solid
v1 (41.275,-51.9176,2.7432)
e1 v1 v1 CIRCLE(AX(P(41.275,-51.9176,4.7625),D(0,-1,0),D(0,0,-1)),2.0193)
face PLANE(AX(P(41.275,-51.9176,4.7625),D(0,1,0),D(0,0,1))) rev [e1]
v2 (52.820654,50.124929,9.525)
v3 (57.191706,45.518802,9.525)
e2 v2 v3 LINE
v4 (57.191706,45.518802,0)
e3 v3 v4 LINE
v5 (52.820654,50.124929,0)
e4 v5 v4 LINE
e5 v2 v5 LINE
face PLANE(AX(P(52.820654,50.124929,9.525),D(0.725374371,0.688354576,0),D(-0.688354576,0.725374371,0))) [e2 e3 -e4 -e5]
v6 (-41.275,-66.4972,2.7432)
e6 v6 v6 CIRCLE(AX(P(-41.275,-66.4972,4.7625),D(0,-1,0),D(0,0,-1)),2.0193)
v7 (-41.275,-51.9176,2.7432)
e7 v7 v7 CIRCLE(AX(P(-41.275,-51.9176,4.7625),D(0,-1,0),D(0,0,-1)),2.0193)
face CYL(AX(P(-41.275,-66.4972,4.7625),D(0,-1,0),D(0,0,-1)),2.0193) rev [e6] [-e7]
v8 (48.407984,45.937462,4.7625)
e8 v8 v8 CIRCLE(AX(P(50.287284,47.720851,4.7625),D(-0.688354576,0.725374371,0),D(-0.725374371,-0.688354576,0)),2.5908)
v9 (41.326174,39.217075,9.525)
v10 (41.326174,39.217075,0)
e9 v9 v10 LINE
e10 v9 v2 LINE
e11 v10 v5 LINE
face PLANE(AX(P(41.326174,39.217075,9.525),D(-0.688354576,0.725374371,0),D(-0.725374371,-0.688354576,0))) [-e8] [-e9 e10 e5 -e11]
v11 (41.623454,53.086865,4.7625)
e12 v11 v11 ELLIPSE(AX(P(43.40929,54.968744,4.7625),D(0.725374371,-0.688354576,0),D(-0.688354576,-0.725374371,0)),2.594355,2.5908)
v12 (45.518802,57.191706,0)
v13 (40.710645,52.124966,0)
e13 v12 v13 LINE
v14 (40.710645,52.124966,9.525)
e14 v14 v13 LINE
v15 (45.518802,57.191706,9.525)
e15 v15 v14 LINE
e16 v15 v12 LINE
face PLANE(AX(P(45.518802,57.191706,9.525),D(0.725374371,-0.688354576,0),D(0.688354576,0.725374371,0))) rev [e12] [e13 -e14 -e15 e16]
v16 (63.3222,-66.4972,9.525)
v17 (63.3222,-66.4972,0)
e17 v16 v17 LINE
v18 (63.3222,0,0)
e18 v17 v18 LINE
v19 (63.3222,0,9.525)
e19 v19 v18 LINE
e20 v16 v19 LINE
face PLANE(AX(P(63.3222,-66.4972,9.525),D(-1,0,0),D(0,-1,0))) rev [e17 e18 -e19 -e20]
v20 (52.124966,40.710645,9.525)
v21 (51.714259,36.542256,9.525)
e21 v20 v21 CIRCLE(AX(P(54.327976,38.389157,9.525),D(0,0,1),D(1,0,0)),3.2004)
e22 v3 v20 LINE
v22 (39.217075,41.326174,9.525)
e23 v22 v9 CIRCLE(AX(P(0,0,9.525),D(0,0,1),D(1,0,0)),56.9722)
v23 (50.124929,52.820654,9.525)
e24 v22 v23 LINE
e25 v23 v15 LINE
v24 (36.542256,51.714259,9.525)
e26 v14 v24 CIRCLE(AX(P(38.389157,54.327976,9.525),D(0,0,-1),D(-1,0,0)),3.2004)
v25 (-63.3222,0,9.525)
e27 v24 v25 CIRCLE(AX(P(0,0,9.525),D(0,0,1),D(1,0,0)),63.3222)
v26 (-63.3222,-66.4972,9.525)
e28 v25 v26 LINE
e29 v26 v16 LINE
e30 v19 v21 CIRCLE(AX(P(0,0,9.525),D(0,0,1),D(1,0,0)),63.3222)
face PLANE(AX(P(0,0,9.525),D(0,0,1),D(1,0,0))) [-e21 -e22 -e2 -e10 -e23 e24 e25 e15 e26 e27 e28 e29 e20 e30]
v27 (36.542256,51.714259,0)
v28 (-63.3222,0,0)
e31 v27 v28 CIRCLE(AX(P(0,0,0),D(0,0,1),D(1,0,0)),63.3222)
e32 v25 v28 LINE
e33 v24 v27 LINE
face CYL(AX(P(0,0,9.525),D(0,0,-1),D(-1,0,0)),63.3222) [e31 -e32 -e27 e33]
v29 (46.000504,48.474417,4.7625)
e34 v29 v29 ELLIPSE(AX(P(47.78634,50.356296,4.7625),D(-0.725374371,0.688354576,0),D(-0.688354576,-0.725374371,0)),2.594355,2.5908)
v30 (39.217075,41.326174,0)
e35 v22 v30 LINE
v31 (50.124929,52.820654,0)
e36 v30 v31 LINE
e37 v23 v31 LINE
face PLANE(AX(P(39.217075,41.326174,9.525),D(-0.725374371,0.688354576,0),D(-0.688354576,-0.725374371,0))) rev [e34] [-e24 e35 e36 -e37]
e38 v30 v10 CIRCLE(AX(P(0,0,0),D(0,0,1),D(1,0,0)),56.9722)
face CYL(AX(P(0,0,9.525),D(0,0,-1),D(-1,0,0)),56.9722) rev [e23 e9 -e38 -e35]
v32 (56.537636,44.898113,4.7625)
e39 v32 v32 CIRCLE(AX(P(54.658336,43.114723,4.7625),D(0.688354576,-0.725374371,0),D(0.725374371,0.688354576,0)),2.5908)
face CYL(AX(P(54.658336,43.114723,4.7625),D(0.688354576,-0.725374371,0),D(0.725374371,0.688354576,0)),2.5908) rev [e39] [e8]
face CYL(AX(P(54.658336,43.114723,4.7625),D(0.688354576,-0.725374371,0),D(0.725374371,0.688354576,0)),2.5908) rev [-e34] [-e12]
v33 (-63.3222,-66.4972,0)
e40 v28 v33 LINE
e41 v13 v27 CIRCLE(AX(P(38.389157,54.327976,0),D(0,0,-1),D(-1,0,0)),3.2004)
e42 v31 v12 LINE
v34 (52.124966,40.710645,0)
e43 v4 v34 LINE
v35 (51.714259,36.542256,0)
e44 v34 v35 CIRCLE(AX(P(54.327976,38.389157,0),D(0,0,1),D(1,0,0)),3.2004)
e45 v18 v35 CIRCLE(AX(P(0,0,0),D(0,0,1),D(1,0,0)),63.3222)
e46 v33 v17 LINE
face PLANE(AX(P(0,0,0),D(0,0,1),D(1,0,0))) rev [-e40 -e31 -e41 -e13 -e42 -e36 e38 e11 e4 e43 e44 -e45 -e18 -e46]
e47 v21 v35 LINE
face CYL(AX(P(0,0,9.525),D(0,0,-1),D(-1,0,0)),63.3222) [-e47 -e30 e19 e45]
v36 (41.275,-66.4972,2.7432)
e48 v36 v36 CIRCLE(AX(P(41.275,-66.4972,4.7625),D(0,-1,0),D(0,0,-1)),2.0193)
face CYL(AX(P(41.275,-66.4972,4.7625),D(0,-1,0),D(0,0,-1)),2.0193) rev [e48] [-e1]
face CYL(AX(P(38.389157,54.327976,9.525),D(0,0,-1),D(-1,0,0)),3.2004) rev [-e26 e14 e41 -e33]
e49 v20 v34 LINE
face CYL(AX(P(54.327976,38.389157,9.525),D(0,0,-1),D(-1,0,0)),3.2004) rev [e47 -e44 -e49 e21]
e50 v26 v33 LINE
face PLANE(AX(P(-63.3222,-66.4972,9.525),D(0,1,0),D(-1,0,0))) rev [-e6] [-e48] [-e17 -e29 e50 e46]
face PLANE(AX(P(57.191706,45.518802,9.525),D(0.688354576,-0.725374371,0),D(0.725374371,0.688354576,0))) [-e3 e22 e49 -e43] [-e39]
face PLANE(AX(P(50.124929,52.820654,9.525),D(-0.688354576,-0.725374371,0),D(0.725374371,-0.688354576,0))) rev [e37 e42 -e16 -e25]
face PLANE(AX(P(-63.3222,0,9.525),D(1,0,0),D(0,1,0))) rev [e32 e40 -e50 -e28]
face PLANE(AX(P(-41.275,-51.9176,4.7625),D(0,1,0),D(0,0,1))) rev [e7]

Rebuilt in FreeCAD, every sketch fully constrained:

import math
import FreeCAD as App
import Part
import Sketcher
from FreeCAD import Vector
Q = App.Units.Quantity

doc = App.newDocument("Part")
params = doc.addObject("Spreadsheet::Sheet", "Params")
for row, (alias, value) in enumerate([
    ("sketch1_radius", "2.493 in"),
    ("sketch1_radius2", "0.126 in"),
    ("sketch1_radius3", "2.243 in"),
    ("sketch1_length", "0.25 in"),
    ("sketch1_height", "2.618 in"),
    ("pad1_length", "0.375 in"),
    ("sketch2_diameter", "0.159 in"),
    ("hole_diameter", "0.159 in"),
    ("hole_depth", "0.574 in"),
    ("sketch3_diameter", "0.204 in"),
    ("hole2_diameter", "0.204 in"),
], start=1):
    params.set(f"A{row}", alias)
    params.set(f"B{row}", "=" + value)
    params.setAlias(f"B{row}", alias)

body = doc.addObject("PartDesign::Body", "Body")

# Sketch on XY plane
sketch1 = body.newObject("Sketcher::SketchObject", "Sketch")
sketch1.AttachmentSupport = (doc.getObject("XY_Plane"), [""])
sketch1.MapMode = "FlatFace"
sketch1.addGeometry([
    Part.LineSegment(Vector(-63.3, 0, 0), Vector(-63.3, -66.5, 0)),  # 0
    Part.LineSegment(Vector(-63.3, -66.5, 0), Vector(63.3, -66.5, 0)),  # 1
    Part.LineSegment(Vector(63.3, -66.5, 0), Vector(63.3, 0, 0)),  # 2
    Part.ArcOfCircle(Part.Circle(Vector(0, 0, 0), Vector(0, 0, 1), 63.3), math.radians(0), math.radians(35)),  # 3
    Part.ArcOfCircle(Part.Circle(Vector(54.3, 38.4, 0), Vector(0, 0, 1), 3.2), math.radians(134), math.radians(215)),  # 4
    Part.LineSegment(Vector(52.1, 40.7, 0), Vector(57.2, 45.5, 0)),  # 5
    Part.LineSegment(Vector(57.2, 45.5, 0), Vector(52.8, 50.1, 0)),  # 6
    Part.LineSegment(Vector(52.8, 50.1, 0), Vector(41.3, 39.2, 0)),  # 7
    Part.ArcOfCircle(Part.Circle(Vector(0, 0, 0), Vector(0, 0, 1), 57), math.radians(47), math.radians(403)),  # 8
    Part.LineSegment(Vector(39.2, 41.3, 0), Vector(50.1, 52.8, 0)),  # 9
    Part.LineSegment(Vector(50.1, 52.8, 0), Vector(45.5, 57.2, 0)),  # 10
    Part.LineSegment(Vector(45.5, 57.2, 0), Vector(40.7, 52.1, 0)),  # 11
    Part.ArcOfCircle(Part.Circle(Vector(38.4, 54.3, 0), Vector(0, 0, 1), 3.2), math.radians(-125), math.radians(-44)),  # 12
    Part.ArcOfCircle(Part.Circle(Vector(0, 0, 0), Vector(0, 0, 1), 63.3), math.radians(55), math.radians(180)),  # 13
], False)
sketch1.addConstraint([
    Sketcher.Constraint("Coincident", 0, 2, 1, 1),
    Sketcher.Constraint("Coincident", 1, 2, 2, 1),
    Sketcher.Constraint("Tangent", 2, 2, 3, 1),
    Sketcher.Constraint("Tangent", 3, 2, 4, 2),
    Sketcher.Constraint("Tangent", 4, 1, 5, 1),
    Sketcher.Constraint("Coincident", 5, 2, 6, 1),
    Sketcher.Constraint("Coincident", 6, 2, 7, 1),
    Sketcher.Constraint("Coincident", 7, 2, 8, 2),
    Sketcher.Constraint("Coincident", 8, 1, 9, 1),
    Sketcher.Constraint("Coincident", 9, 2, 10, 1),
    Sketcher.Constraint("Coincident", 10, 2, 11, 1),
    Sketcher.Constraint("Tangent", 11, 2, 12, 2),
    Sketcher.Constraint("Tangent", 12, 1, 13, 1),
    Sketcher.Constraint("Tangent", 13, 2, 0, 1),
    Sketcher.Constraint("Vertical", 0),
    Sketcher.Constraint("Horizontal", 1),
    Sketcher.Constraint("Vertical", 2),
    Sketcher.Constraint("Coincident", 3, 3, -1, 1),
    Sketcher.Constraint("Coincident", 8, 3, -1, 1),
    Sketcher.Constraint("Coincident", 13, 3, -1, 1),
    Sketcher.Constraint("Equal", 4, 12),
    Sketcher.Constraint("Equal", 3, 13),
    Sketcher.Constraint("Perpendicular", 5, 6),
    Sketcher.Constraint("Perpendicular", 6, 7),
    Sketcher.Constraint("Perpendicular", 9, 10),
    Sketcher.Constraint("Perpendicular", 10, 11),
    Sketcher.Constraint("Equal", 7, 9),
    Sketcher.Constraint("Equal", 6, 10),
    Sketcher.Constraint("Equal", 5, 11),
    Sketcher.Constraint("Radius", 3, Q("2.493 in")),
    Sketcher.Constraint("Radius", 4, Q("0.126 in")),
    Sketcher.Constraint("Radius", 8, Q("2.243 in")),
    Sketcher.Constraint("Angle", 5, Q("43.5 deg")),
    Sketcher.Constraint("Angle", 9, Q("46.5 deg")),
    Sketcher.Constraint("Distance", 6, Q("0.25 in")),
    Sketcher.Constraint("DistanceY", 0, 2, 0, 1, Q("2.618 in")),
    Sketcher.Constraint("Distance", 5, Q("0.275 in")),
    Sketcher.Constraint("DistanceY", -1, 1, 5, 2, Q("45.518802 mm")),
])
sketch1.setExpression("Constraints[29]", "Params.sketch1_radius")
sketch1.setExpression("Constraints[30]", "Params.sketch1_radius2")
sketch1.setExpression("Constraints[31]", "Params.sketch1_radius3")
sketch1.setExpression("Constraints[34]", "Params.sketch1_length")
sketch1.setExpression("Constraints[35]", "Params.sketch1_height")
pad1 = body.newObject("PartDesign::Pad", "Pad")
pad1.Profile = sketch1
pad1.setExpression("Length", "Params.pad1_length")

# Sketch on XZ plane
sketch2 = body.newObject("Sketcher::SketchObject", "Sketch001")
sketch2.AttachmentSupport = (doc.getObject("XZ_Plane"), [""])
sketch2.MapMode = "FlatFace"
sketch2.AttachmentOffset = App.Placement(Vector(0, 0, 2.618 * 25.4), App.Rotation())
sketch2.addGeometry([
    Part.Circle(Vector(41.3, 4.8, 0), Vector(0, 0, 1), 2),
    Part.Circle(Vector(-41.3, 4.8, 0), Vector(0, 0, 1), 2),
], False)
sketch2.addConstraint([
    Sketcher.Constraint("Equal", 0, 1),
    Sketcher.Constraint("Symmetric", 0, 3, 1, 3, -2),
    Sketcher.Constraint("Diameter", 0, Q("0.159 in")),
    Sketcher.Constraint("DistanceX", 1, 3, 0, 3, Q("3.25 in")),
    Sketcher.Constraint("DistanceY", -1, 1, 0, 3, Q("0.1875 in")),
])
sketch2.setExpression("Constraints[2]", "Params.sketch2_diameter")
doc.recompute()
hole = body.newObject("PartDesign::Hole", "Hole")
hole.Profile = sketch2
hole.ThreadType = "None"
hole.setExpression("Diameter", "Params.hole_diameter")
hole.DepthType = "Dimension"
hole.setExpression("Depth", "Params.hole_depth")
hole.DrillPoint = "Flat"

# Sketch on an angled plane
sketch3 = body.newObject("Sketcher::SketchObject", "Sketch002")
sketch3.Placement = App.Placement(Vector(4.371052, -4.606127, 0), App.Rotation(Vector(-0.725374371, -0.688354576, 0), Vector(0, 0, -1), Vector(0.688354576, -0.725374371, 0), "ZXY"))
sketch3.addGeometry(Part.Circle(Vector(-69.3, -4.8, 0), Vector(0, 0, 1), 2.6), False)
sketch3.addConstraint([
    Sketcher.Constraint("Diameter", 0, Q("0.204 in")),
    Sketcher.Constraint("DistanceY", 0, 3, -1, 1, Q("0.1875 in")),
    Sketcher.Constraint("DistanceX", 0, 3, -1, 1, Q("69.325973 mm")),
])
sketch3.setExpression("Constraints[0]", "Params.sketch3_diameter")
doc.recompute()
hole2 = body.newObject("PartDesign::Hole", "Hole001")
hole2.Profile = sketch3
hole2.ThreadType = "None"
hole2.setExpression("Diameter", "Params.hole2_diameter")
hole2.DepthType = "ThroughAll"

doc.recompute()
